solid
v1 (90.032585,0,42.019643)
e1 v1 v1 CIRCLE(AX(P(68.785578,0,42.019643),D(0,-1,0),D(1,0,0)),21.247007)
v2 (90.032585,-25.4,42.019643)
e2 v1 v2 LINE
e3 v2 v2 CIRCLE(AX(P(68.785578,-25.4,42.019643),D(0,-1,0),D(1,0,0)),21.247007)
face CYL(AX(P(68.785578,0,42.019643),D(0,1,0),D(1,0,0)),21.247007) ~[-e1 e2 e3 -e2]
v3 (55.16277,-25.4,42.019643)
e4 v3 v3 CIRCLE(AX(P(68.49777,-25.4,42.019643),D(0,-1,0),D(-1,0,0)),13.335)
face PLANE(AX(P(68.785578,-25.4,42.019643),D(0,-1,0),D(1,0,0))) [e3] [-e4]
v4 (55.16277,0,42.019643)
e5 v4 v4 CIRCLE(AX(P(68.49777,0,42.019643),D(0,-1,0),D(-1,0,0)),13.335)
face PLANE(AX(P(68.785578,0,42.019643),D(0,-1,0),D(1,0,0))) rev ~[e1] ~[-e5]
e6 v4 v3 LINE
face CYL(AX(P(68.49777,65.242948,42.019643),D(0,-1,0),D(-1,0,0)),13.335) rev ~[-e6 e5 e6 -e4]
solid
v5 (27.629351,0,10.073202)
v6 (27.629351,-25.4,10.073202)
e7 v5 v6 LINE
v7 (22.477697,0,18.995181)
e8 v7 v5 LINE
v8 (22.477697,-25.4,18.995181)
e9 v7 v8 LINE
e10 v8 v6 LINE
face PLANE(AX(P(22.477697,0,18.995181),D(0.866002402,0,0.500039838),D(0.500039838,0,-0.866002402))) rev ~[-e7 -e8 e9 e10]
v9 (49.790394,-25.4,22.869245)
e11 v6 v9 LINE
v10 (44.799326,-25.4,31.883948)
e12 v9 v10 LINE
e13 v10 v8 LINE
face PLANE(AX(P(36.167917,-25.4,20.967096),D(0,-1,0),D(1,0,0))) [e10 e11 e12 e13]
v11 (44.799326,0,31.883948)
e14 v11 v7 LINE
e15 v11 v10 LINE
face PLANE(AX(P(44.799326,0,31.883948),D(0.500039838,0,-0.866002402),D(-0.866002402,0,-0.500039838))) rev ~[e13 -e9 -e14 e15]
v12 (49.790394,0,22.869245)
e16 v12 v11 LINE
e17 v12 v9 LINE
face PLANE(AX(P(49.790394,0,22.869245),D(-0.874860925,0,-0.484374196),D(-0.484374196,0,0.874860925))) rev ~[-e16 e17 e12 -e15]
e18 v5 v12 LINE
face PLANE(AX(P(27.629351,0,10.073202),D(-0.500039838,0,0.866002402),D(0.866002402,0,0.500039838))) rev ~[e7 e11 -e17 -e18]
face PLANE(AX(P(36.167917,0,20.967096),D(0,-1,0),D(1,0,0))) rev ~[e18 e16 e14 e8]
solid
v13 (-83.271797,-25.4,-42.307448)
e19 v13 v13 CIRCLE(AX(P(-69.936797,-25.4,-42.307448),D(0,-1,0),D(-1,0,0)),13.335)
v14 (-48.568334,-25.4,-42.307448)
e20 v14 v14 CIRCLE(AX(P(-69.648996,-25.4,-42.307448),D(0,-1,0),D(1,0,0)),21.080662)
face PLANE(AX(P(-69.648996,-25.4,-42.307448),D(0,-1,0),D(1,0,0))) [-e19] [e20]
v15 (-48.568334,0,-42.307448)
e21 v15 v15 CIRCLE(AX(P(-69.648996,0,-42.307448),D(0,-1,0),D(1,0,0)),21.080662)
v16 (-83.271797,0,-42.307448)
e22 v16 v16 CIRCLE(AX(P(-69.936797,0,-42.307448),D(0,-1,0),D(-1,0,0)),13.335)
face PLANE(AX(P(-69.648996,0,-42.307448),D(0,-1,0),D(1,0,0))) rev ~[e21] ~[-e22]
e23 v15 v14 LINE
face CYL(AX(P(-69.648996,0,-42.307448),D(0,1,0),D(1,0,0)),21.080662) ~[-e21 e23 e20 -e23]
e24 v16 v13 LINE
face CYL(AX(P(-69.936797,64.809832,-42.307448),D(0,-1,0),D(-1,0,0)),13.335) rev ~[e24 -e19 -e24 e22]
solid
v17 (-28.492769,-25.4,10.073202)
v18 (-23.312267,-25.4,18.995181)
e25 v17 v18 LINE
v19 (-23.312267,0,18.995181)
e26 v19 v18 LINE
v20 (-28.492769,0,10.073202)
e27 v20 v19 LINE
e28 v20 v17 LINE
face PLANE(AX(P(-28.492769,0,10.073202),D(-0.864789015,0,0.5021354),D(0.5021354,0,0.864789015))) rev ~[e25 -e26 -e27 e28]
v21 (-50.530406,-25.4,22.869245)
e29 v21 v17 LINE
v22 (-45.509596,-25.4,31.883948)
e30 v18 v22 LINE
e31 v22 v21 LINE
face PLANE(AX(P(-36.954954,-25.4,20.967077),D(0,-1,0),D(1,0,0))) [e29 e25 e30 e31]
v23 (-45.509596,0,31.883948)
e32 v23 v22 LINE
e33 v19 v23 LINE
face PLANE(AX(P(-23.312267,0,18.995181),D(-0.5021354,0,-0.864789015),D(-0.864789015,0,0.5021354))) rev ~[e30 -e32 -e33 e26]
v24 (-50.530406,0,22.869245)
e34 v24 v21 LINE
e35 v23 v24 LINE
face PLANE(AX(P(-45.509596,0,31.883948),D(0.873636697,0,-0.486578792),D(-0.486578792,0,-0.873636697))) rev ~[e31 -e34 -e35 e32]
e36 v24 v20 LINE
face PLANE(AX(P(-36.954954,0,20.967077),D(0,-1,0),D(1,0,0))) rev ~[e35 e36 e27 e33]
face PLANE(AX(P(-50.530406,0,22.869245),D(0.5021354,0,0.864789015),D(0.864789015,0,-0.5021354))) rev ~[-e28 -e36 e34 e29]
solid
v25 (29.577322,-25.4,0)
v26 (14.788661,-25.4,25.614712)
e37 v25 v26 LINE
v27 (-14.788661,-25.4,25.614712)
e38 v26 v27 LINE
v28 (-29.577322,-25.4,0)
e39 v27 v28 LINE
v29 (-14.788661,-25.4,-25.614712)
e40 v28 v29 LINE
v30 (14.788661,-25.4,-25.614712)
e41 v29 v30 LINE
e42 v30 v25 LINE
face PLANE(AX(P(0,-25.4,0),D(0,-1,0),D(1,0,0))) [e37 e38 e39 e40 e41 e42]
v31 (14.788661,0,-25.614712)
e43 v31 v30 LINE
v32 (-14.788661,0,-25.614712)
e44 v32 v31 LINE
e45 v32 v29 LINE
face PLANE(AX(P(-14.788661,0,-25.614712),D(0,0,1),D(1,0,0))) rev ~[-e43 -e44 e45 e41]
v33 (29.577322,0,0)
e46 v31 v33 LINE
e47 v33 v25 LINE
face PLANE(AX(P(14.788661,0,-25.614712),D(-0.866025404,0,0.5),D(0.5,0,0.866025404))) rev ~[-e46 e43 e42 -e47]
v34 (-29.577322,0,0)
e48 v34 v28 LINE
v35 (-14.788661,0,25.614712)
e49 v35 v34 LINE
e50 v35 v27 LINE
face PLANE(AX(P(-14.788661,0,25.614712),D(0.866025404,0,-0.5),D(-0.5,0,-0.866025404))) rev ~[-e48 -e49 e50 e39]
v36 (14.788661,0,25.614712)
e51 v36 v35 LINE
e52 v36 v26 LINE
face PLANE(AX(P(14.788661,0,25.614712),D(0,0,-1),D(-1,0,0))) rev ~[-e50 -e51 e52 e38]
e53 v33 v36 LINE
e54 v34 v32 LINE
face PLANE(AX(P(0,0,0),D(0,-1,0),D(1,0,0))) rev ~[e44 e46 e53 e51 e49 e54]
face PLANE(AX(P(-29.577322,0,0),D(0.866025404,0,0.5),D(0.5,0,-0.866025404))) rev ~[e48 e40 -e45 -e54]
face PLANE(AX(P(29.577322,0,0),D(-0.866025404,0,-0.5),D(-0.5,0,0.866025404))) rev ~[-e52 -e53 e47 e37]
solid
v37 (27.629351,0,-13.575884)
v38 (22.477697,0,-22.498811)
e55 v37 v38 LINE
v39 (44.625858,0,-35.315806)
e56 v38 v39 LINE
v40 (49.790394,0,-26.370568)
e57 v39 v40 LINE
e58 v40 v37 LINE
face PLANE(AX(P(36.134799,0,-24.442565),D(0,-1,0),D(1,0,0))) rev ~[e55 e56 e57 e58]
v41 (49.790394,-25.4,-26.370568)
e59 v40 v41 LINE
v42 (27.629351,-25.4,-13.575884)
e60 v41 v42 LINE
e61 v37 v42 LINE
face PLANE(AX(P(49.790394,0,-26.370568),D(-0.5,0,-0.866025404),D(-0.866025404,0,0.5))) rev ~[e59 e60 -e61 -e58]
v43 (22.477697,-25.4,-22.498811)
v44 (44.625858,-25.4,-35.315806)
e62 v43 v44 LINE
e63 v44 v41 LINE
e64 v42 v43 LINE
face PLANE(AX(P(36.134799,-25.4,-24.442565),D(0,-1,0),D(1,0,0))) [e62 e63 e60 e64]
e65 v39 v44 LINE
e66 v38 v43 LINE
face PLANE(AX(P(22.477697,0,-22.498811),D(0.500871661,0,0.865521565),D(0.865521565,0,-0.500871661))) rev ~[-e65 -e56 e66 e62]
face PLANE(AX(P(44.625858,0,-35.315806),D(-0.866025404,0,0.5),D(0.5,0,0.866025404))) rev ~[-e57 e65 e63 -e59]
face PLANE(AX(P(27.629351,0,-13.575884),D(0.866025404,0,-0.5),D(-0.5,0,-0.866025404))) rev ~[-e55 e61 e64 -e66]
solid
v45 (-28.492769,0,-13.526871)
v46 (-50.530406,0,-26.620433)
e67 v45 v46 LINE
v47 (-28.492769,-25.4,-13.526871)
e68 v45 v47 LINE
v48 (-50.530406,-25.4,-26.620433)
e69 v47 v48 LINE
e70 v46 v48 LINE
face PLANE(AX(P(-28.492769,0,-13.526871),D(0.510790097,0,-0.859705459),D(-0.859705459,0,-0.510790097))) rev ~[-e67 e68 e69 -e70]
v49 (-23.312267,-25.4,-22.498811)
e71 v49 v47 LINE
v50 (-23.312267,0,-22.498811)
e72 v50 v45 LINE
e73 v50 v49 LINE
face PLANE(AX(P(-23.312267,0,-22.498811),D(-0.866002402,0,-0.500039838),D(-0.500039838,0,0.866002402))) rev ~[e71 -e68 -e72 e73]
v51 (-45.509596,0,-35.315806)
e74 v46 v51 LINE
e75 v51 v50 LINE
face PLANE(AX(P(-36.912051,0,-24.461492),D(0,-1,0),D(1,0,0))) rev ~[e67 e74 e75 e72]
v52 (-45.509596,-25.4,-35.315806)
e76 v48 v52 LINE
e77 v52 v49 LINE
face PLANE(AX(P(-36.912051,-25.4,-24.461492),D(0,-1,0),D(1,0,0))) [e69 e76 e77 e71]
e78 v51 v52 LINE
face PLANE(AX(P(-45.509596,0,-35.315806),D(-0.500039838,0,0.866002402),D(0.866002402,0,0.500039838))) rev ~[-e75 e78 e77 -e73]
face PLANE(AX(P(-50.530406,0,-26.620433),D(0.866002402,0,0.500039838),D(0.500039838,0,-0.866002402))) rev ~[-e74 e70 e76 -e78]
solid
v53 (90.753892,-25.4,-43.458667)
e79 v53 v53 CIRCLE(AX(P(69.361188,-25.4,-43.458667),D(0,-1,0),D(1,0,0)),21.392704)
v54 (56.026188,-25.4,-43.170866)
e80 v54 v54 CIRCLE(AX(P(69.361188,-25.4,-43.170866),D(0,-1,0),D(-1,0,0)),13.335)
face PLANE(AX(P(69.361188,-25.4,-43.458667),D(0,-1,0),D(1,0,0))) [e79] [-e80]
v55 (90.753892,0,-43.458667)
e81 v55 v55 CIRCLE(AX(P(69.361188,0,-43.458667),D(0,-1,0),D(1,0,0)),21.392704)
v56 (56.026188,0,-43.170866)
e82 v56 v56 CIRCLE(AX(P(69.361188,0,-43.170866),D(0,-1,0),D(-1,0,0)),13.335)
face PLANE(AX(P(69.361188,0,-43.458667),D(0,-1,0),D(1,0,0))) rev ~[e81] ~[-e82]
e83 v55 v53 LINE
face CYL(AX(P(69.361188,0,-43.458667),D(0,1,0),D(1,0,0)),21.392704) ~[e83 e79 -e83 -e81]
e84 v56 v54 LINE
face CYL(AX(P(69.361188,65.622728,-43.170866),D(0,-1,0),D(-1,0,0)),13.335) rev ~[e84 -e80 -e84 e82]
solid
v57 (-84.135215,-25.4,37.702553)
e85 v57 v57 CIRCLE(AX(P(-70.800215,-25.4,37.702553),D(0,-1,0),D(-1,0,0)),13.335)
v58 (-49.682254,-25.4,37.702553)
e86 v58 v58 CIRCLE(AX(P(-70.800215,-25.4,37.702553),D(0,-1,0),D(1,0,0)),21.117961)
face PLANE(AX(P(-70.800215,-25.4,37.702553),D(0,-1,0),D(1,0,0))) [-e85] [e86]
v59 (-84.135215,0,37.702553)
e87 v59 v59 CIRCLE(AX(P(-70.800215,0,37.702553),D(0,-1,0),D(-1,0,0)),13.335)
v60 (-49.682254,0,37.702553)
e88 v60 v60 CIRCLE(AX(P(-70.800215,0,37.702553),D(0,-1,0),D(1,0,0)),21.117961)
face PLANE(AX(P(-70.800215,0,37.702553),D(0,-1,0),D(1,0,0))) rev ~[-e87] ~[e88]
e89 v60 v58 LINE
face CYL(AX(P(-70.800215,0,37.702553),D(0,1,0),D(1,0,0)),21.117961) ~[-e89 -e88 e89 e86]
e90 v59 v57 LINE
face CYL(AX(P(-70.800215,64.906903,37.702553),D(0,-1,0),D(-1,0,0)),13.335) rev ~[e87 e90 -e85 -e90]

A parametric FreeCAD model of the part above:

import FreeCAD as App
import Part
import Sketcher
from FreeCAD import Vector
Q = App.Units.Quantity


def add_polygon(sketch, points):
    """Adds a closed chain of lines whose ends are joined by coincident constraints."""
    first, n = sketch.GeometryCount, len(points)
    for a, b in zip(points, points[1:] + points[:1]):
        sketch.addGeometry(Part.LineSegment(App.Vector(*a, 0), App.Vector(*b, 0)), False)
    for i in range(n):
        sketch.addConstraint(Sketcher.Constraint("Coincident", first + i, 2, first + (i + 1) % n, 1))

doc = App.newDocument("Part")
body = doc.addObject("PartDesign::Body", "Body")

sketch1 = body.newObject("Sketcher::SketchObject", "Sketch")
sketch1.AttachmentSupport = (doc.getObject("XZ_Plane"), [""])
sketch1.MapMode = "FlatFace"
add_polygon(sketch1, [(-28, 10), (-23, 19), (-46, 32), (-51, 23)])
sketch1.addConstraint(Sketcher.Constraint("Perpendicular", 0, 1))
sketch1.addConstraint(Sketcher.Constraint("Parallel", 1, 3))
sketch1.addConstraint(Sketcher.Constraint("DistanceY", -1, 1, 3, 2, Q("10.073202 mm")))
sketch1.addConstraint(Sketcher.Constraint("DistanceY", -1, 1, 0, 2, Q("18.995181 mm")))
sketch1.addConstraint(Sketcher.Constraint("DistanceY", -1, 1, 1, 2, Q("31.883948 mm")))
sketch1.addConstraint(Sketcher.Constraint("DistanceX", 3, 2, -1, 1, Q("28.492769 mm")))
sketch1.addConstraint(Sketcher.Constraint("DistanceX", 1, 2, 0, 2, Q("22.197329 mm")))
sketch1.addConstraint(Sketcher.Constraint("DistanceX", 2, 2, 1, 2, Q("5.02081 mm")))
pad1 = body.newObject("PartDesign::Pad", "Pad")
pad1.Profile = sketch1
pad1.Length = Q("1 in")
body2 = doc.addObject("PartDesign::Body", "Body001")

sketch2 = body2.newObject("Sketcher::SketchObject", "Sketch001")
sketch2.AttachmentSupport = (doc.getObject("XZ_Plane001"), [""])
sketch2.MapMode = "FlatFace"
add_polygon(sketch2, [(-15, -26), (15, -26), (30, 0), (15, 26), (-15, 26), (-30, 0)])
sketch2.addConstraint(Sketcher.Constraint("Horizontal", 0))
sketch2.addConstraint(Sketcher.Constraint("Horizontal", 3))
sketch2.addConstraint(Sketcher.Constraint("Symmetric", 0, 2, 3, 2, -1, 1))
sketch2.addConstraint(Sketcher.Constraint("Symmetric", 1, 2, 4, 2, -1, 1))
sketch2.addConstraint(Sketcher.Constraint("PointOnObject", 1, 2, -1))
sketch2.addConstraint(Sketcher.Constraint("Parallel", 2, 5))
sketch2.addConstraint(Sketcher.Constraint("Vertical", 0, 2, 2, 2))
sketch2.addConstraint(Sketcher.Constraint("Angle", 1, Q("60 deg")))
sketch2.addConstraint(Sketcher.Constraint("DistanceX", 0, 1, 0, 2, Q("29.577322 mm")))
sketch2.addConstraint(Sketcher.Constraint("DistanceX", 0, 2, 1, 2, Q("14.788661 mm")))
pad2 = body2.newObject("PartDesign::Pad", "Pad001")
pad2.Profile = sketch2
pad2.Length = Q("1 in")
body3 = doc.addObject("PartDesign::Body", "Body002")

sketch3 = body3.newObject("Sketcher::SketchObject", "Sketch002")
sketch3.AttachmentSupport = (doc.getObject("XZ_Plane002"), [""])
sketch3.MapMode = "FlatFace"
add_polygon(sketch3, [(22, 19), (28, 10), (50, 23), (45, 32)])
sketch3.addConstraint(Sketcher.Constraint("Perpendicular", 0, 1))
sketch3.addConstraint(Sketcher.Constraint("Parallel", 1, 3))
sketch3.addConstraint(Sketcher.Constraint("DistanceY", -1, 1, 0, 2, Q("10.073202 mm")))
sketch3.addConstraint(Sketcher.Constraint("Distance", 3, Q("25.775482 mm")))
sketch3.addConstraint(Sketcher.Constraint("DistanceX", -1, 1, 0, 2, Q("27.629351 mm")))
sketch3.addConstraint(Sketcher.Constraint("DistanceY", -1, 1, 2, 2, Q("31.883948 mm")))
sketch3.addConstraint(Sketcher.Constraint("DistanceY", -1, 1, 3, 2, Q("18.995181 mm")))
sketch3.addConstraint(Sketcher.Constraint("Distance", 1, Q("25.590047 mm")))
pad3 = body3.newObject("PartDesign::Pad", "Pad002")
pad3.Profile = sketch3
pad3.Length = Q("1 in")
body4 = doc.addObject("PartDesign::Body", "Body003")

sketch4 = body4.newObject("Sketcher::SketchObject", "Sketch003")
sketch4.AttachmentSupport = (doc.getObject("XZ_Plane003"), [""])
sketch4.MapMode = "FlatFace"
sketch4.addGeometry(Part.Circle(Vector(69, 42, 0), Vector(0, 0, 1), 21), False)
sketch4.addConstraint(Sketcher.Constraint("Diameter", 0, Q("42.494013 mm")))
sketch4.addConstraint(Sketcher.Constraint("DistanceX", -1, 1, 0, 3, Q("68.785578 mm")))
sketch4.addConstraint(Sketcher.Constraint("DistanceY", -1, 1, 0, 3, Q("42.019643 mm")))
pad4 = body4.newObject("PartDesign::Pad", "Pad003")
pad4.Profile = sketch4
pad4.Length = Q("1 in")

sketch5 = body4.newObject("Sketcher::SketchObject", "Sketch004")
sketch5.AttachmentSupport = (doc.getObject("XZ_Plane003"), [""])
sketch5.MapMode = "FlatFace"
sketch5.addGeometry(Part.Circle(Vector(-71, 38, 0), Vector(0, 0, 1), 13), False)
sketch5.addGeometry(Part.Circle(Vector(-70, -42, 0), Vector(0, 0, 1), 13), False)
sketch5.addGeometry(Part.Circle(Vector(68, 42, 0), Vector(0, 0, 1), 13), False)
sketch5.addGeometry(Part.Circle(Vector(69, -43, 0), Vector(0, 0, 1), 13), False)
sketch5.addConstraint(Sketcher.Constraint("Equal", 0, 1))
sketch5.addConstraint(Sketcher.Constraint("Equal", 1, 2))
sketch5.addConstraint(Sketcher.Constraint("Equal", 2, 3))
sketch5.addConstraint(Sketcher.Constraint("Diameter", 0, Q("1.05 in")))
sketch5.addConstraint(Sketcher.Constraint("DistanceY", 1, 3, 0, 3, Q("3.15 in")))
sketch5.addConstraint(Sketcher.Constraint("DistanceX", -1, 1, 2, 3, Q("68.49777 mm")))
sketch5.addConstraint(Sketcher.Constraint("DistanceY", 0, 3, 2, 3, Q("4.31709 mm")))
sketch5.addConstraint(Sketcher.Constraint("DistanceY", 3, 3, 2, 3, Q("85.190509 mm")))
sketch5.addConstraint(Sketcher.Constraint("DistanceX", 0, 3, -1, 1, Q("70.800215 mm")))
sketch5.addConstraint(Sketcher.Constraint("DistanceY", -1, 1, 0, 3, Q("37.702553 mm")))
sketch5.addConstraint(Sketcher.Constraint("DistanceX", 1, 3, -1, 1, Q("69.936797 mm")))
sketch5.addConstraint(Sketcher.Constraint("DistanceX", -1, 1, 3, 3, Q("69.361188 mm")))
doc.recompute()
hole = body4.newObject("PartDesign::Hole", "Hole")
hole.Profile = sketch5
hole.ThreadType = "None"
hole.Diameter = Q("1.05 in")
hole.DepthType = "ThroughAll"
hole.Reversed = True
body5 = doc.addObject("PartDesign::Body", "Body004")

sketch6 = body5.newObject("Sketcher::SketchObject", "Sketch005")
sketch6.AttachmentSupport = (doc.getObject("XZ_Plane004"), [""])
sketch6.MapMode = "FlatFace"
sketch6.addGeometry(Part.Circle(Vector(-70, -42, 0), Vector(0, 0, 1), 21), False)
sketch6.addConstraint(Sketcher.Constraint("Diameter", 0, Q("42.161323 mm")))
sketch6.addConstraint(Sketcher.Constraint("DistanceX", 0, 3, -1, 1, Q("69.648996 mm")))
sketch6.addConstraint(Sketcher.Constraint("DistanceY", 0, 3, -1, 1, Q("42.307448 mm")))
pad5 = body5.newObject("PartDesign::Pad", "Pad004")
pad5.Profile = sketch6
pad5.Length = Q("1 in")

sketch7 = body5.newObject("Sketcher::SketchObject", "Sketch006")
sketch7.AttachmentSupport = (doc.getObject("XZ_Plane004"), [""])
sketch7.MapMode = "FlatFace"
sketch7.addGeometry(Part.Circle(Vector(-71, 38, 0), Vector(0, 0, 1), 13), False)
sketch7.addGeometry(Part.Circle(Vector(-70, -42, 0), Vector(0, 0, 1), 13), False)
sketch7.addGeometry(Part.Circle(Vector(68, 42, 0), Vector(0, 0, 1), 13), False)
sketch7.addGeometry(Part.Circle(Vector(69, -43, 0), Vector(0, 0, 1), 13), False)
sketch7.addConstraint(Sketcher.Constraint("Equal", 0, 1))
sketch7.addConstraint(Sketcher.Constraint("Equal", 1, 2))
sketch7.addConstraint(Sketcher.Constraint("Equal", 2, 3))
sketch7.addConstraint(Sketcher.Constraint("Diameter", 0, Q("1.05 in")))
sketch7.addConstraint(Sketcher.Constraint("DistanceY", 1, 3, 0, 3, Q("3.15 in")))
sketch7.addConstraint(Sketcher.Constraint("DistanceX", -1, 1, 2, 3, Q("68.49777 mm")))
sketch7.addConstraint(Sketcher.Constraint("DistanceY", 0, 3, 2, 3, Q("4.31709 mm")))
sketch7.addConstraint(Sketcher.Constraint("DistanceY", 3, 3, 2, 3, Q("85.190509 mm")))
sketch7.addConstraint(Sketcher.Constraint("DistanceX", 0, 3, -1, 1, Q("70.800215 mm")))
sketch7.addConstraint(Sketcher.Constraint("DistanceY", -1, 1, 0, 3, Q("37.702553 mm")))
sketch7.addConstraint(Sketcher.Constraint("DistanceX", 1, 3, -1, 1, Q("69.936797 mm")))
sketch7.addConstraint(Sketcher.Constraint("DistanceX", -1, 1, 3, 3, Q("69.361188 mm")))
doc.recompute()
hole2 = body5.newObject("PartDesign::Hole", "Hole001")
hole2.Profile = sketch7
hole2.ThreadType = "None"
hole2.Diameter = Q("1.05 in")
hole2.DepthType = "ThroughAll"
hole2.Reversed = True
body6 = doc.addObject("PartDesign::Body", "Body005")

sketch8 = body6.newObject("Sketcher::SketchObject", "Sketch007")
sketch8.AttachmentSupport = (doc.getObject("XZ_Plane005"), [""])
sketch8.MapMode = "FlatFace"
sketch8.addGeometry(Part.Circle(Vector(-71, 38, 0), Vector(0, 0, 1), 21), False)
sketch8.addConstraint(Sketcher.Constraint("Diameter", 0, Q("42.235921 mm")))
sketch8.addConstraint(Sketcher.Constraint("DistanceX", 0, 3, -1, 1, Q("70.800215 mm")))
sketch8.addConstraint(Sketcher.Constraint("DistanceY", -1, 1, 0, 3, Q("37.702553 mm")))
pad6 = body6.newObject("PartDesign::Pad", "Pad005")
pad6.Profile = sketch8
pad6.Length = Q("1 in")

sketch9 = body6.newObject("Sketcher::SketchObject", "Sketch008")
sketch9.AttachmentSupport = (doc.getObject("XZ_Plane005"), [""])
sketch9.MapMode = "FlatFace"
sketch9.addGeometry(Part.Circle(Vector(-71, 38, 0), Vector(0, 0, 1), 13), False)
sketch9.addGeometry(Part.Circle(Vector(-70, -42, 0), Vector(0, 0, 1), 13), False)
sketch9.addGeometry(Part.Circle(Vector(68, 42, 0), Vector(0, 0, 1), 13), False)
sketch9.addGeometry(Part.Circle(Vector(69, -43, 0), Vector(0, 0, 1), 13), False)
sketch9.addConstraint(Sketcher.Constraint("Equal", 0, 1))
sketch9.addConstraint(Sketcher.Constraint("Equal", 1, 2))
sketch9.addConstraint(Sketcher.Constraint("Equal", 2, 3))
sketch9.addConstraint(Sketcher.Constraint("Diameter", 0, Q("1.05 in")))
sketch9.addConstraint(Sketcher.Constraint("DistanceY", 1, 3, 0, 3, Q("3.15 in")))
sketch9.addConstraint(Sketcher.Constraint("DistanceX", -1, 1, 2, 3, Q("68.49777 mm")))
sketch9.addConstraint(Sketcher.Constraint("DistanceY", 0, 3, 2, 3, Q("4.31709 mm")))
sketch9.addConstraint(Sketcher.Constraint("DistanceY", 3, 3, 2, 3, Q("85.190509 mm")))
sketch9.addConstraint(Sketcher.Constraint("DistanceX", 0, 3, -1, 1, Q("70.800215 mm")))
sketch9.addConstraint(Sketcher.Constraint("DistanceY", -1, 1, 0, 3, Q("37.702553 mm")))
sketch9.addConstraint(Sketcher.Constraint("DistanceX", 1, 3, -1, 1, Q("69.936797 mm")))
sketch9.addConstraint(Sketcher.Constraint("DistanceX", -1, 1, 3, 3, Q("69.361188 mm")))
doc.recompute()
hole3 = body6.newObject("PartDesign::Hole", "Hole002")
hole3.Profile = sketch9
hole3.ThreadType = "None"
hole3.Diameter = Q("1.05 in")
hole3.DepthType = "ThroughAll"
hole3.Reversed = True
body7 = doc.addObject("PartDesign::Body", "Body006")

sketch10 = body7.newObject("Sketcher::SketchObject", "Sketch009")
sketch10.AttachmentSupport = (doc.getObject("XZ_Plane006"), [""])
sketch10.MapMode = "FlatFace"
add_polygon(sketch10, [(-23, -22), (-28, -14), (-51, -27), (-46, -35)])
sketch10.addConstraint(Sketcher.Constraint("Parallel", 0, 2))
sketch10.addConstraint(Sketcher.Constraint("Perpendicular", 2, 3))
sketch10.addConstraint(Sketcher.Constraint("Distance", 0, Q("10.360179 mm")))
sketch10.addConstraint(Sketcher.Constraint("Distance", 1, Q("25.633938 mm")))
sketch10.addConstraint(Sketcher.Constraint("Distance", 2, Q("10.040819 mm")))
sketch10.addConstraint(Sketcher.Constraint("DistanceX", 0, 2, -1, 1, Q("28.492769 mm")))
sketch10.addConstraint(Sketcher.Constraint("DistanceY", 0, 2, -1, 1, Q("13.526871 mm")))
sketch10.addConstraint(Sketcher.Constraint("DistanceY", 3, 2, -1, 1, Q("22.498811 mm")))
pad7 = body7.newObject("PartDesign::Pad", "Pad006")
pad7.Profile = sketch10
pad7.Length = Q("1 in")
body8 = doc.addObject("PartDesign::Body", "Body007")

sketch11 = body8.newObject("Sketcher::SketchObject", "Sketch010")
sketch11.AttachmentSupport = (doc.getObject("XZ_Plane007"), [""])
sketch11.MapMode = "FlatFace"
add_polygon(sketch11, [(28, -14), (22, -22), (45, -35), (50, -26)])
sketch11.addConstraint(Sketcher.Constraint("Parallel", 0, 2))
sketch11.addConstraint(Sketcher.Constraint("Perpendicular", 2, 3))
sketch11.addConstraint(Sketcher.Constraint("Angle", 0, Q("-120 deg")))
sketch11.addConstraint(Sketcher.Constraint("Distance", 0, Q("10.303308 mm")))
sketch11.addConstraint(Sketcher.Constraint("Distance", 1, Q("25.58938 mm")))
sketch11.addConstraint(Sketcher.Constraint("Distance", 2, Q("10.329072 mm")))
sketch11.addConstraint(Sketcher.Constraint("DistanceY", 0, 2, -1, 1, Q("22.498811 mm")))
sketch11.addConstraint(Sketcher.Constraint("DistanceX", -1, 1, 3, 2, Q("27.629351 mm")))
pad8 = body8.newObject("PartDesign::Pad", "Pad007")
pad8.Profile = sketch11
pad8.Length = Q("1 in")
body9 = doc.addObject("PartDesign::Body", "Body008")

sketch12 = body9.newObject("Sketcher::SketchObject", "Sketch011")
sketch12.AttachmentSupport = (doc.getObject("XZ_Plane008"), [""])
sketch12.MapMode = "FlatFace"
sketch12.addGeometry(Part.Circle(Vector(69, -43, 0), Vector(0, 0, 1), 21), False)
sketch12.addConstraint(Sketcher.Constraint("Diameter", 0, Q("42.785409 mm")))
sketch12.addConstraint(Sketcher.Constraint("DistanceX", -1, 1, 0, 3, Q("69.361188 mm")))
sketch12.addConstraint(Sketcher.Constraint("DistanceY", 0, 3, -1, 1, Q("43.458667 mm")))
pad9 = body9.newObject("PartDesign::Pad", "Pad008")
pad9.Profile = sketch12
pad9.Length = Q("1 in")

sketch13 = body9.newObject("Sketcher::SketchObject", "Sketch012")
sketch13.AttachmentSupport = (doc.getObject("XZ_Plane008"), [""])
sketch13.MapMode = "FlatFace"
sketch13.addGeometry(Part.Circle(Vector(-71, 38, 0), Vector(0, 0, 1), 13), False)
sketch13.addGeometry(Part.Circle(Vector(-70, -42, 0), Vector(0, 0, 1), 13), False)
sketch13.addGeometry(Part.Circle(Vector(68, 42, 0), Vector(0, 0, 1), 13), False)
sketch13.addGeometry(Part.Circle(Vector(69, -43, 0), Vector(0, 0, 1), 13), False)
sketch13.addConstraint(Sketcher.Constraint("Equal", 0, 1))
sketch13.addConstraint(Sketcher.Constraint("Equal", 1, 2))
sketch13.addConstraint(Sketcher.Constraint("Equal", 2, 3))
sketch13.addConstraint(Sketcher.Constraint("Diameter", 0, Q("1.05 in")))
sketch13.addConstraint(Sketcher.Constraint("DistanceY", 1, 3, 0, 3, Q("3.15 in")))
sketch13.addConstraint(Sketcher.Constraint("DistanceX", -1, 1, 2, 3, Q("68.49777 mm")))
sketch13.addConstraint(Sketcher.Constraint("DistanceY", 0, 3, 2, 3, Q("4.31709 mm")))
sketch13.addConstraint(Sketcher.Constraint("DistanceY", 3, 3, 2, 3, Q("85.190509 mm")))
sketch13.addConstraint(Sketcher.Constraint("DistanceX", 0, 3, -1, 1, Q("70.800215 mm")))
sketch13.addConstraint(Sketcher.Constraint("DistanceY", -1, 1, 0, 3, Q("37.702553 mm")))
sketch13.addConstraint(Sketcher.Constraint("DistanceX", 1, 3, -1, 1, Q("69.936797 mm")))
sketch13.addConstraint(Sketcher.Constraint("DistanceX", -1, 1, 3, 3, Q("69.361188 mm")))
doc.recompute()
hole4 = body9.newObject("PartDesign::Hole", "Hole003")
hole4.Profile = sketch13
hole4.ThreadType = "None"
hole4.Diameter = Q("1.05 in")
hole4.DepthType = "ThroughAll"
hole4.Reversed = True

doc.recompute()
